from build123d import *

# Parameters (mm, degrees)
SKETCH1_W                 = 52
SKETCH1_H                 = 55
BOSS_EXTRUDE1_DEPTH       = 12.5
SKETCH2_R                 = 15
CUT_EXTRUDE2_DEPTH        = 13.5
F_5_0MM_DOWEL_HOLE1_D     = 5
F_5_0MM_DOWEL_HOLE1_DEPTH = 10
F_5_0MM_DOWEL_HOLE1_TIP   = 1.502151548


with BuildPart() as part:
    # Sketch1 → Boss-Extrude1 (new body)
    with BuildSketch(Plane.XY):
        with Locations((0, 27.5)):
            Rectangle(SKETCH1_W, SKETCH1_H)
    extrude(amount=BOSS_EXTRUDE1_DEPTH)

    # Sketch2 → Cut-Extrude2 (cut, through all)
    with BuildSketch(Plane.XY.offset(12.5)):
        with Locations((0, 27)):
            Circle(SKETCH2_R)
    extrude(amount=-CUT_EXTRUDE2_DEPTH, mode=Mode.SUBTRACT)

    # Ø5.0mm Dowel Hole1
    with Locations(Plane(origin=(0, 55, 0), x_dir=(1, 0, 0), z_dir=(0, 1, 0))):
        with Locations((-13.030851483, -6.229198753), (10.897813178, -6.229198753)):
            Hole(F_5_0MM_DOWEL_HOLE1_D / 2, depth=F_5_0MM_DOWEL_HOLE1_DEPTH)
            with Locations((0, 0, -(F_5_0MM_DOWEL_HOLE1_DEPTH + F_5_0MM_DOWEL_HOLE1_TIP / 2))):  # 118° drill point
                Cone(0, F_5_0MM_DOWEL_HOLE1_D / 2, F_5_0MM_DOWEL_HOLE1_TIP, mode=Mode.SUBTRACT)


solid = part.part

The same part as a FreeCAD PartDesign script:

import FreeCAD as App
import Part
import Sketcher

doc = App.newDocument("Part")
body = doc.addObject("PartDesign::Body", "Body")

# Sketch on XY plane
sketch1 = body.newObject("Sketcher::SketchObject", "Sketch")
sketch1.AttachmentSupport = (doc.getObject("XY_Plane"), [""])
sketch1.MapMode = "FlatFace"
sketch1.addGeometry(Part.LineSegment(App.Vector(-26, 55, 0), App.Vector(-26, 0, 0)), False)
sketch1.addGeometry(Part.LineSegment(App.Vector(-26, 0, 0), App.Vector(26, 0, 0)), False)
sketch1.addGeometry(Part.LineSegment(App.Vector(26, 0, 0), App.Vector(26, 55, 0)), False)
sketch1.addGeometry(Part.LineSegment(App.Vector(26, 55, 0), App.Vector(-26, 55, 0)), False)
sketch1.addConstraint(Sketcher.Constraint("Coincident", 0, 2, 1, 1))
sketch1.addConstraint(Sketcher.Constraint("Coincident", 1, 2, 2, 1))
sketch1.addConstraint(Sketcher.Constraint("Coincident", 2, 2, 3, 1))
sketch1.addConstraint(Sketcher.Constraint("Coincident", 3, 2, 0, 1))
sketch1.addConstraint(Sketcher.Constraint("Vertical", 0))
sketch1.addConstraint(Sketcher.Constraint("Horizontal", 1))
sketch1.addConstraint(Sketcher.Constraint("Vertical", 2))
sketch1.addConstraint(Sketcher.Constraint("Horizontal", 3))
sketch1.addConstraint(Sketcher.Constraint("Symmetric", 0, 2, 1, 2, -1, 1))
sketch1.addConstraint(Sketcher.Constraint("DistanceX", 1, 1, 1, 2, 52.0))
sketch1.addConstraint(Sketcher.Constraint("DistanceY", 0, 2, 0, 1, 55.0))
pad1 = body.newObject("PartDesign::Pad", "Pad")
pad1.Profile = sketch1
pad1.Length = 12.5

# Sketch on XY plane
sketch2 = body.newObject("Sketcher::SketchObject", "Sketch001")
sketch2.AttachmentSupport = (doc.getObject("XY_Plane"), [""])
sketch2.MapMode = "FlatFace"
sketch2.AttachmentOffset = App.Placement(App.Vector(0, 0, 12.5), App.Rotation())
sketch2.addGeometry(Part.Circle(App.Vector(0, 27, 0), App.Vector(0, 0, 1), 15), False)
sketch2.addConstraint(Sketcher.Constraint("PointOnObject", 0, 3, -2))
sketch2.addConstraint(Sketcher.Constraint("Diameter", 0, 30.0))
sketch2.addConstraint(Sketcher.Constraint("DistanceY", -1, 1, 0, 3, 27.0))
pocket1 = body.newObject("PartDesign::Pocket", "Pocket")
pocket1.Profile = sketch2
pocket1.Type = "ThroughAll"

# Sketch on XZ plane
sketch3 = body.newObject("Sketcher::SketchObject", "Sketch002")
sketch3.AttachmentSupport = (doc.getObject("XZ_Plane"), [""])
sketch3.MapMode = "FlatFace"
sketch3.AttachmentOffset = App.Placement(App.Vector(0, 0, -55), App.Rotation())
sketch3.addGeometry(Part.Circle(App.Vector(-13, 6.2, 0), App.Vector(0, 0, 1), 2.5), False)
sketch3.addGeometry(Part.Circle(App.Vector(10.9, 6.2, 0), App.Vector(0, 0, 1), 2.5), False)
sketch3.addConstraint(Sketcher.Constraint("Equal", 0, 1))
sketch3.addConstraint(Sketcher.Constraint("Horizontal", 0, 3, 1, 3))
sketch3.addConstraint(Sketcher.Constraint("Diameter", 0, 5.0))
sketch3.addConstraint(Sketcher.Constraint("DistanceY", -1, 1, 0, 3, 6.229199))
sketch3.addConstraint(Sketcher.Constraint("DistanceX", 0, 3, -1, 1, 13.030851))
sketch3.addConstraint(Sketcher.Constraint("DistanceX", -1, 1, 1, 3, 10.897813))
doc.recompute()
hole = body.newObject("PartDesign::Hole", "Hole")
hole.Profile = sketch3
hole.ThreadType = "None"
hole.Diameter = 5
hole.DepthType = "Dimension"
hole.Depth = 10
hole.DrillPoint = "Angled"
hole.DrillPointAngle = 118
hole.Reversed = True

doc.recompute()
